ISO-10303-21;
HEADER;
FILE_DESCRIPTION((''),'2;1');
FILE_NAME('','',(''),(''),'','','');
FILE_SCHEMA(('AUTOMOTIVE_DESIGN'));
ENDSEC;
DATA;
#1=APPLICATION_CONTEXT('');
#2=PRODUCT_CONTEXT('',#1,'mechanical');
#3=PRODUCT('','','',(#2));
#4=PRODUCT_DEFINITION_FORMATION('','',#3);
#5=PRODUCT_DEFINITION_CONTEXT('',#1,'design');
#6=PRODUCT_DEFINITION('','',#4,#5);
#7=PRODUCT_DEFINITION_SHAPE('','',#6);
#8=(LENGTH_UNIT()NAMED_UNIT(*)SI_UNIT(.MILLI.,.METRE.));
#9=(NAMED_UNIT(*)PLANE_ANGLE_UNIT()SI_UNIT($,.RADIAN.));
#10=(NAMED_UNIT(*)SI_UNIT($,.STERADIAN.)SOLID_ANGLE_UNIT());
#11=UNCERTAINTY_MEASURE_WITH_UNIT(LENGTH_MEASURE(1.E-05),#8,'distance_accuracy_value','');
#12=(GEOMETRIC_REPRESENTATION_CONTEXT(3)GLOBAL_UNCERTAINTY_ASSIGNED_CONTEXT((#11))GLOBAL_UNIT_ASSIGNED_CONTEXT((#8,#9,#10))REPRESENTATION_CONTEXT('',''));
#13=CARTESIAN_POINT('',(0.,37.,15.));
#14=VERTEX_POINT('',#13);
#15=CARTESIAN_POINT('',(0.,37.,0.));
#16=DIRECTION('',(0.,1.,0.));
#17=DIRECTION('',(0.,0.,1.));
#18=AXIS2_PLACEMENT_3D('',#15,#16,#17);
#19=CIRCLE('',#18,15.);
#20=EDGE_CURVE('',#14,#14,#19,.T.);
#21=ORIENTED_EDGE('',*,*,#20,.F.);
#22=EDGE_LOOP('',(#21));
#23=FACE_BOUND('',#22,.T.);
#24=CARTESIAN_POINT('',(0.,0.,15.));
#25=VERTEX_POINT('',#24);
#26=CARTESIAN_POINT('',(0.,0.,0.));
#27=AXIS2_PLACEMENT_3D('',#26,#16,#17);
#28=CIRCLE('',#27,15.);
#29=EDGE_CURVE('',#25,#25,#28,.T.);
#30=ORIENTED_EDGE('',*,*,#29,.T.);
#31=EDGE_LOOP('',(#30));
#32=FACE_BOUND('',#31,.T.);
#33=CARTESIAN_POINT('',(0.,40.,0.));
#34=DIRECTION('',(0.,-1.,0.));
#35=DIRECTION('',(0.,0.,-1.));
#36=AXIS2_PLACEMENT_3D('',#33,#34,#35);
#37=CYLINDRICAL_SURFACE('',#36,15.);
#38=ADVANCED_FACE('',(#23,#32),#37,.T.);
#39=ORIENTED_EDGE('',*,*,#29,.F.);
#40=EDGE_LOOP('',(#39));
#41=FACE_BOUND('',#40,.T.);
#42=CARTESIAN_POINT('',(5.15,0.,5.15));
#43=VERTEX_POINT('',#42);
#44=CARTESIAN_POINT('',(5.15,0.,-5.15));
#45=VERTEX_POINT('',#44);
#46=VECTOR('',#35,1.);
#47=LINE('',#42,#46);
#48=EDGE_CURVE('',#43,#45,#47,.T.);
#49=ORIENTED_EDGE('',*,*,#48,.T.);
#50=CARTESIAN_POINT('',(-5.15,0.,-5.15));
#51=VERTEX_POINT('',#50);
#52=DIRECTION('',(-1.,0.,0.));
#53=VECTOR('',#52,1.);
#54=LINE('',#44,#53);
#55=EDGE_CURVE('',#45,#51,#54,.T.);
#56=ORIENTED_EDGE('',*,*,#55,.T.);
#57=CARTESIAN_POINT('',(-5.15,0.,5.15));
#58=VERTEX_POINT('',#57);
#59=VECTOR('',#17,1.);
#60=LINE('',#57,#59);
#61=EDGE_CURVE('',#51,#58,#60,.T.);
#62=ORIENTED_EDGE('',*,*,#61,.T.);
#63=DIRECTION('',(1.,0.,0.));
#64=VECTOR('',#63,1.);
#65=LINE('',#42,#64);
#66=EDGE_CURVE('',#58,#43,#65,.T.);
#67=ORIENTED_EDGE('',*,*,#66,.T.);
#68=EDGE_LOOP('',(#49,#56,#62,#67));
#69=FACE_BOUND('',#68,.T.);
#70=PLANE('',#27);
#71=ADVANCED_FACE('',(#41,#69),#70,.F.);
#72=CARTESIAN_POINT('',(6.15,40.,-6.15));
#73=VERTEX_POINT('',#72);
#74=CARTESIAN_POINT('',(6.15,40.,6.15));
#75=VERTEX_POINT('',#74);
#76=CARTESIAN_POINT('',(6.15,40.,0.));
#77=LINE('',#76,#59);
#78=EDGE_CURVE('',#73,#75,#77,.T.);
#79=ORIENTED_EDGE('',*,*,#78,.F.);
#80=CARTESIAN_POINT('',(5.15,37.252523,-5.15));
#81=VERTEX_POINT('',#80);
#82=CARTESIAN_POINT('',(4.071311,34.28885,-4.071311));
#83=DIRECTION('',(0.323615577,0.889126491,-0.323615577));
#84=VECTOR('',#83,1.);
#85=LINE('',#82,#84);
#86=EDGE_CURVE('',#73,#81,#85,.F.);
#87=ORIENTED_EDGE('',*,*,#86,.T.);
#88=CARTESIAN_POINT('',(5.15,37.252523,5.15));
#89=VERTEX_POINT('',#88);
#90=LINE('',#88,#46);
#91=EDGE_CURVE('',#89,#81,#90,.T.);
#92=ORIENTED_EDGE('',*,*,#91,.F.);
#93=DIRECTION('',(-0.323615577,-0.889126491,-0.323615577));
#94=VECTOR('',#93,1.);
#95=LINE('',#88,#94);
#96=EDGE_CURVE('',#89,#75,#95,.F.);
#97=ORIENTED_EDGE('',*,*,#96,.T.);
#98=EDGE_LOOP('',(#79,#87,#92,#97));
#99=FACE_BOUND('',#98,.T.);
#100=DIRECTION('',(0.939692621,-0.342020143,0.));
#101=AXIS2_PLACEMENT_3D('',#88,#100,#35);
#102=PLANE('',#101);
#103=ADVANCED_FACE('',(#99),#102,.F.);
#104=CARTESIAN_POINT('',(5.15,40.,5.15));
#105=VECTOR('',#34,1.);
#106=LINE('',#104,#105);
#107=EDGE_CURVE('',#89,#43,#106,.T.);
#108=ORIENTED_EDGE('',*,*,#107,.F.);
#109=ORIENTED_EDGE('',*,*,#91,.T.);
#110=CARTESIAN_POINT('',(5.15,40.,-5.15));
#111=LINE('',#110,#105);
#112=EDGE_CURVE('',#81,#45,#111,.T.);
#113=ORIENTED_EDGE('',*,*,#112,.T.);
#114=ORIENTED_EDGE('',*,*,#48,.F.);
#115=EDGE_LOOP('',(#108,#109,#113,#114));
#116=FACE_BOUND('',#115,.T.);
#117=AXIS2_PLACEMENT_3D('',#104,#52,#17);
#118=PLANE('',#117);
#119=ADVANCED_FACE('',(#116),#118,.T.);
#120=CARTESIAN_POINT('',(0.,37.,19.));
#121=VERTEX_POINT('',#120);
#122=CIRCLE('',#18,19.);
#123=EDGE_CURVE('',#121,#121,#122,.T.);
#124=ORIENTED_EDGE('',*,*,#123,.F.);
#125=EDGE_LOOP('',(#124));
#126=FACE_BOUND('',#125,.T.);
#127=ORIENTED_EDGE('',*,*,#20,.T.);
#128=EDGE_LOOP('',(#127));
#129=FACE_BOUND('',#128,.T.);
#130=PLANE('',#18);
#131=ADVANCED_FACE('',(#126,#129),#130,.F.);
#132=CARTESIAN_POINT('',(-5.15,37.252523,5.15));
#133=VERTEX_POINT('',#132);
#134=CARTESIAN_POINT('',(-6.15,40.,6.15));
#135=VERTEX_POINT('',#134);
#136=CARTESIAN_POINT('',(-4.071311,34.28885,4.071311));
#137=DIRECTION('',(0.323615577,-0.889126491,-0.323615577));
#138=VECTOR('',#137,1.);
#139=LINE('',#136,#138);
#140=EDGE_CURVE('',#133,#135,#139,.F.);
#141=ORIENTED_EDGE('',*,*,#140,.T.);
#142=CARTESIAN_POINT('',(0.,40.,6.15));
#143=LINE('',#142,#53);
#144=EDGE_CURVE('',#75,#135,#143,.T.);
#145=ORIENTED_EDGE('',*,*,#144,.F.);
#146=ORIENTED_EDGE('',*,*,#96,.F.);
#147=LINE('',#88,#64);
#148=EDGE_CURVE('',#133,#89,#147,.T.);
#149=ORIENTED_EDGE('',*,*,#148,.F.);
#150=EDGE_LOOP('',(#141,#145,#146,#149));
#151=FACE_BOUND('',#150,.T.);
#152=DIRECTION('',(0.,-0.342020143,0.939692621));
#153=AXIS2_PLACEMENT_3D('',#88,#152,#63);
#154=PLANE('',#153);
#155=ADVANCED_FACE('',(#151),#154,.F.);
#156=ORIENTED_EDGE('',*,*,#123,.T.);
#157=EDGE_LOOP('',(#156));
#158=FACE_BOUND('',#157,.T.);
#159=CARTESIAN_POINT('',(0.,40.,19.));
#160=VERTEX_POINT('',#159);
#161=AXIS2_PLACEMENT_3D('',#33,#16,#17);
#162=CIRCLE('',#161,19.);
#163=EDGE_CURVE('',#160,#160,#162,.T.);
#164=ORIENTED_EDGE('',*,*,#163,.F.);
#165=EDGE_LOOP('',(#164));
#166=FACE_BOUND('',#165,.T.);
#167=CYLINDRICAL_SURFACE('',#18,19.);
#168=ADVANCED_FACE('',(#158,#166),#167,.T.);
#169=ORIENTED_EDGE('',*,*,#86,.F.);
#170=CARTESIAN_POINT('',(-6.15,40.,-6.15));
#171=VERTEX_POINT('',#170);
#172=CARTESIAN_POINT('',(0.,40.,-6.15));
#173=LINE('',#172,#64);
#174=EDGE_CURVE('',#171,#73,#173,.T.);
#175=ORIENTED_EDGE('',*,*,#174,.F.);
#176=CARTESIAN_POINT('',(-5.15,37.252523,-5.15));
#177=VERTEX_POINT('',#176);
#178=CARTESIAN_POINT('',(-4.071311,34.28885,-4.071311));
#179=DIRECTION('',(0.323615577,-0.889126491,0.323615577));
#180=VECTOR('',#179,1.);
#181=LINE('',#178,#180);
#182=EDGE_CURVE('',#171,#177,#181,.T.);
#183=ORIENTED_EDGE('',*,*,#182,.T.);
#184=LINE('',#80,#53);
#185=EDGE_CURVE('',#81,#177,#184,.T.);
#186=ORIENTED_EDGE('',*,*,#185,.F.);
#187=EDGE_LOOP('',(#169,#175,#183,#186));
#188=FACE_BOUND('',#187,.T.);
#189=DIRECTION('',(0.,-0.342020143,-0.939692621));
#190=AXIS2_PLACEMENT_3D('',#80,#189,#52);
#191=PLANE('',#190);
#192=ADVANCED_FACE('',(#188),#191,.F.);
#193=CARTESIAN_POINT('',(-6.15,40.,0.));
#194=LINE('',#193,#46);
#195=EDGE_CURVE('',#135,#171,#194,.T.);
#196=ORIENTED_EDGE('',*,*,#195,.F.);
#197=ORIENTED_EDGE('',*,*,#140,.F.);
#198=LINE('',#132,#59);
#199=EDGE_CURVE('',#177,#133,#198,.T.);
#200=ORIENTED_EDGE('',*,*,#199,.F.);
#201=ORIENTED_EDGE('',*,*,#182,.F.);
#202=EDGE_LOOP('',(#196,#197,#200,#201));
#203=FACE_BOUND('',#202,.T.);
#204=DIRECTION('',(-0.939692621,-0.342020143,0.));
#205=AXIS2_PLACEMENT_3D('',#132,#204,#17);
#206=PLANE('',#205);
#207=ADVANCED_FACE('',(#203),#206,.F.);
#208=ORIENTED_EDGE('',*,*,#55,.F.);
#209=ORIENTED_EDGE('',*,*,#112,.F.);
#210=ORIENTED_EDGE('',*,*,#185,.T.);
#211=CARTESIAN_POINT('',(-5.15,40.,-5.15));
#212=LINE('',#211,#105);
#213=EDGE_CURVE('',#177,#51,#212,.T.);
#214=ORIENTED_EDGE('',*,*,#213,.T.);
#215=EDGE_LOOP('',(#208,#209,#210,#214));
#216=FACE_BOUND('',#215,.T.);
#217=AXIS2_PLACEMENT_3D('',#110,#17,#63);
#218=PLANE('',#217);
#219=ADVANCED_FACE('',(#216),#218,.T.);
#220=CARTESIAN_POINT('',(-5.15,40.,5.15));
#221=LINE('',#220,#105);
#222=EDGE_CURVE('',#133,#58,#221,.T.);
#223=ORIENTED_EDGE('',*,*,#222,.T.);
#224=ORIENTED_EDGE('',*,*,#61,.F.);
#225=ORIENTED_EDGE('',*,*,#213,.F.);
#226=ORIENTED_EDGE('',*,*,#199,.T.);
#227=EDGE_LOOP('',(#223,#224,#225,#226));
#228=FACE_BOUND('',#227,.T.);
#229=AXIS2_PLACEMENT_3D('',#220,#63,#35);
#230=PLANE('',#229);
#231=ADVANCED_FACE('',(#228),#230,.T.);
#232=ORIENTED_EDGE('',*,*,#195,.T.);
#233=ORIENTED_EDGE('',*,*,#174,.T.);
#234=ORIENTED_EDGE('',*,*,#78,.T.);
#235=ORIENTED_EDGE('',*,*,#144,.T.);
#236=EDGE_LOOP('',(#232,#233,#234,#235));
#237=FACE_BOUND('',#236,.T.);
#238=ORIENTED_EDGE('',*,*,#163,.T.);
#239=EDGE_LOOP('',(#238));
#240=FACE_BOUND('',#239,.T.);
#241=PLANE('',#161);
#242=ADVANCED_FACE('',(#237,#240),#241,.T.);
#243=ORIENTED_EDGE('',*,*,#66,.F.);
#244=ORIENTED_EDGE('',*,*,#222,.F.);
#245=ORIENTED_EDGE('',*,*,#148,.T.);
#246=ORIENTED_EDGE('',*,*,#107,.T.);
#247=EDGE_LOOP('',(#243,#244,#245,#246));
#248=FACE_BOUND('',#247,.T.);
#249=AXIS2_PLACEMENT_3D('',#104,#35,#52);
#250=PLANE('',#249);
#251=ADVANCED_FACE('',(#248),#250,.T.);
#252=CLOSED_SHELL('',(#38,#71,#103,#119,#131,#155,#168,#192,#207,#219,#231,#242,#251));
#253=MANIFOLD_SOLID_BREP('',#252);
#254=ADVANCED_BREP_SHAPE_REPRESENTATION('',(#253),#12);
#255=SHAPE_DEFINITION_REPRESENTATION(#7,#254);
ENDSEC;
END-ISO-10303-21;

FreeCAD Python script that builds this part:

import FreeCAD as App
import Part
import Sketcher


def edges_at(feature, points):
    """Names of the edges that pass closest to the given points."""
    edges = feature.Shape.Edges
    near = lambda p: min(range(len(edges)), key=lambda i: edges[i].distToShape(Part.Vertex(*p))[0])
    return sorted({f"Edge{near(p) + 1}" for p in points})

doc = App.newDocument("Part")
body = doc.addObject("PartDesign::Body", "Body")

# Sketch on XZ plane
sketch1 = doc.addObject("Sketcher::SketchObject", "Sketch")
body.addObject(sketch1)
sketch1.AttachmentSupport = (doc.XZ_Plane, [""])
sketch1.MapMode = "FlatFace"
sketch1.addGeometry(Part.Circle(App.Vector(0, 0, 0), App.Vector(0, 0, 1), 15), False)
sketch1.addGeometry(Part.LineSegment(App.Vector(5, 5, 0), App.Vector(-5, 5, 0)), False)
sketch1.addGeometry(Part.LineSegment(App.Vector(-5, 5, 0), App.Vector(-5, -5, 0)), False)
sketch1.addGeometry(Part.LineSegment(App.Vector(-5, -5, 0), App.Vector(5, -5, 0)), False)
sketch1.addGeometry(Part.LineSegment(App.Vector(5, -5, 0), App.Vector(5, 5, 0)), False)
sketch1.addConstraint(Sketcher.Constraint("Coincident", 1, 2, 2, 1))
sketch1.addConstraint(Sketcher.Constraint("Coincident", 2, 2, 3, 1))
sketch1.addConstraint(Sketcher.Constraint("Coincident", 3, 2, 4, 1))
sketch1.addConstraint(Sketcher.Constraint("Coincident", 4, 2, 1, 1))
sketch1.addConstraint(Sketcher.Constraint("Horizontal", 1))
sketch1.addConstraint(Sketcher.Constraint("Vertical", 2))
sketch1.addConstraint(Sketcher.Constraint("Horizontal", 3))
sketch1.addConstraint(Sketcher.Constraint("Vertical", 4))
sketch1.addConstraint(Sketcher.Constraint("Coincident", 0, 3, -1, 1))
sketch1.addConstraint(Sketcher.Constraint("Symmetric", 1, 2, 3, 2, -1, 1))
sketch1.addConstraint(Sketcher.Constraint("Equal", 3, 2))
sketch1.addConstraint(Sketcher.Constraint("Diameter", 0, 30.0))
sketch1.addConstraint(Sketcher.Constraint("DistanceX", 1, 2, 1, 1, 10.3))
pad1 = doc.addObject("PartDesign::Pad", "Pad")
body.addObject(pad1)
pad1.Profile = sketch1
pad1.Length = 40
pad1.Reversed = True

# Sketch on XZ plane
sketch2 = doc.addObject("Sketcher::SketchObject", "Sketch001")
body.addObject(sketch2)
sketch2.AttachmentSupport = (doc.XZ_Plane, [""])
sketch2.MapMode = "FlatFace"
sketch2.AttachmentOffset = App.Placement(App.Vector(0, 0, -40), App.Rotation())
sketch2.addGeometry(Part.Circle(App.Vector(0, 0, 0), App.Vector(0, 0, 1), 19), False)
sketch2.addGeometry(Part.LineSegment(App.Vector(5, 5, 0), App.Vector(-5, 5, 0)), False)
sketch2.addGeometry(Part.LineSegment(App.Vector(-5, 5, 0), App.Vector(-5, -5, 0)), False)
sketch2.addGeometry(Part.LineSegment(App.Vector(-5, -5, 0), App.Vector(5, -5, 0)), False)
sketch2.addGeometry(Part.LineSegment(App.Vector(5, -5, 0), App.Vector(5, 5, 0)), False)
sketch2.addConstraint(Sketcher.Constraint("Coincident", 1, 2, 2, 1))
sketch2.addConstraint(Sketcher.Constraint("Coincident", 2, 2, 3, 1))
sketch2.addConstraint(Sketcher.Constraint("Coincident", 3, 2, 4, 1))
sketch2.addConstraint(Sketcher.Constraint("Coincident", 4, 2, 1, 1))
sketch2.addConstraint(Sketcher.Constraint("Horizontal", 1))
sketch2.addConstraint(Sketcher.Constraint("Vertical", 2))
sketch2.addConstraint(Sketcher.Constraint("Horizontal", 3))
sketch2.addConstraint(Sketcher.Constraint("Vertical", 4))
sketch2.addConstraint(Sketcher.Constraint("Coincident", 0, 3, -1, 1))
sketch2.addConstraint(Sketcher.Constraint("Symmetric", 1, 2, 3, 2, -1, 1))
sketch2.addConstraint(Sketcher.Constraint("Equal", 3, 2))
sketch2.addConstraint(Sketcher.Constraint("Diameter", 0, 38.0))
sketch2.addConstraint(Sketcher.Constraint("DistanceX", 1, 2, 1, 1, 10.3))
pad2 = doc.addObject("PartDesign::Pad", "Pad001")
body.addObject(pad2)
pad2.Profile = sketch2
pad2.Length = 3
doc.recompute()

chamfer = doc.addObject("PartDesign::Chamfer", "Chamfer")
body.addObject(chamfer)
chamfer.Base = (pad2, edges_at(pad2, [
    (0, 40, -5.15),
    (-5.15, 40, 0),
    (0, 40, 5.15),
    (5.15, 40, 0),
]))
chamfer.ChamferType = "Two distances"
chamfer.Size = 1
chamfer.Size2 = 2.747477
chamfer.FlipDirection = True

doc.recompute()
